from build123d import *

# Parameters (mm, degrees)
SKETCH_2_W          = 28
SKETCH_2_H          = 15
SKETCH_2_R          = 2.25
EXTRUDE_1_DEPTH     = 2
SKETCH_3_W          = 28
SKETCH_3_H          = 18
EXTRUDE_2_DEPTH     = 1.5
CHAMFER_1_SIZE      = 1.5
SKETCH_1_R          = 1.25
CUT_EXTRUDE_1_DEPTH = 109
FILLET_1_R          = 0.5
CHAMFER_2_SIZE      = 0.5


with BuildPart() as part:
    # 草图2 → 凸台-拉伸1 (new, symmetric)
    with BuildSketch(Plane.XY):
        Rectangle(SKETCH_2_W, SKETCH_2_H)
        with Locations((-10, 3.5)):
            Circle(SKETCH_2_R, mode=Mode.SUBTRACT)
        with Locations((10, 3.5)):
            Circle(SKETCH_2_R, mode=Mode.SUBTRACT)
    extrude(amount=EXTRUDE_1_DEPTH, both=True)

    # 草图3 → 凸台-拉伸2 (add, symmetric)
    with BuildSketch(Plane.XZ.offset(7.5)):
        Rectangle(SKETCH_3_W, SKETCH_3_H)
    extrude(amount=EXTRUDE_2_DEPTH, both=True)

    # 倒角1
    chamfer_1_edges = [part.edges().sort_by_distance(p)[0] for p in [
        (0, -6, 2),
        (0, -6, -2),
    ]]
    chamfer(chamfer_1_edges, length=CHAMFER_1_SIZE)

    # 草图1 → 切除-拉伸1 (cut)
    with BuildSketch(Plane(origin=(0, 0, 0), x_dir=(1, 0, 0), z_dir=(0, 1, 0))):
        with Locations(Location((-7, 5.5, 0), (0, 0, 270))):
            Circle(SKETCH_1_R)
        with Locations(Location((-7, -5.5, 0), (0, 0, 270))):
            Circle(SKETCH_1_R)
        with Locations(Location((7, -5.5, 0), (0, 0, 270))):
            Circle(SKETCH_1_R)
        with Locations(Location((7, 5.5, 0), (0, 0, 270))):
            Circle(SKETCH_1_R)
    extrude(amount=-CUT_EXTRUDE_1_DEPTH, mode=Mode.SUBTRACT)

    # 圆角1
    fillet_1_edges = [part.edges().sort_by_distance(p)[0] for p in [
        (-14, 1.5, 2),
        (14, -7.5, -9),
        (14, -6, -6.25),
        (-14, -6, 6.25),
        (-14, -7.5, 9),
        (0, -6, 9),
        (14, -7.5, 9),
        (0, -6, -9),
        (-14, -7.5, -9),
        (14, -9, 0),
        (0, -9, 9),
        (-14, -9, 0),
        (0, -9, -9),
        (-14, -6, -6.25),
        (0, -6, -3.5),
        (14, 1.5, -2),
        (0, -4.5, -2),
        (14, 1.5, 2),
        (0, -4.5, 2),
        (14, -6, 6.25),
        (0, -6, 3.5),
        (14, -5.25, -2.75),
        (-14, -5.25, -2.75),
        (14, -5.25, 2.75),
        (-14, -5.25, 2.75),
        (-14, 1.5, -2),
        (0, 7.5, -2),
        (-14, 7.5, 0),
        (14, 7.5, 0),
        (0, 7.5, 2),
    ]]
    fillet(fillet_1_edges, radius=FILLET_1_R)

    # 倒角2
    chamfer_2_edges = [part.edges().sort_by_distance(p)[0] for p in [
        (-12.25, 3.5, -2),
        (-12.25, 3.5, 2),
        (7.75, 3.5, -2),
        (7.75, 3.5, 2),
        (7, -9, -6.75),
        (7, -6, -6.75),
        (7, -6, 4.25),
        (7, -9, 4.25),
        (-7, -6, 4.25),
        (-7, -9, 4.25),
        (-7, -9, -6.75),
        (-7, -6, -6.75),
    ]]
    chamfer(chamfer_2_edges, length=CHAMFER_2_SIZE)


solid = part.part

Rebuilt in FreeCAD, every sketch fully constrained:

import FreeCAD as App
import Part
import Sketcher
from FreeCAD import Vector


def edges_at(feature, points):
    """Names of the edges that pass closest to the given points."""
    edges = feature.Shape.Edges
    near = lambda p: min(range(len(edges)), key=lambda i: edges[i].distToShape(Part.Vertex(*p))[0])
    return sorted({f"Edge{near(p) + 1}" for p in points})


def add_polygon(sketch, points):
    """Adds a closed chain of lines whose ends are joined by coincident constraints."""
    first, n = sketch.GeometryCount, len(points)
    for a, b in zip(points, points[1:] + points[:1]):
        sketch.addGeometry(Part.LineSegment(App.Vector(*a, 0), App.Vector(*b, 0)), False)
    for i in range(n):
        sketch.addConstraint(Sketcher.Constraint("Coincident", first + i, 2, first + (i + 1) % n, 1))

doc = App.newDocument("Part")
body = doc.addObject("PartDesign::Body", "Body")

sketch1 = doc.addObject("Sketcher::SketchObject", "Sketch")
body.addObject(sketch1)
sketch1.AttachmentSupport = (doc.XY_Plane, [""])
sketch1.MapMode = "FlatFace"
add_polygon(sketch1, [(-14, 7.5), (-14, -7.5), (14, -7.5), (14, 7.5)])
sketch1.addGeometry(Part.Circle(Vector(-10, 3.5, 0), Vector(0, 0, 1), 2.2), False)
sketch1.addGeometry(Part.Circle(Vector(10, 3.5, 0), Vector(0, 0, 1), 2.2), False)
sketch1.addConstraint([
    Sketcher.Constraint("Vertical", 0),
    Sketcher.Constraint("Horizontal", 1),
    Sketcher.Constraint("Vertical", 2),
    Sketcher.Constraint("Horizontal", 3),
    Sketcher.Constraint("Equal", 4, 5),
    Sketcher.Constraint("Symmetric", 0, 2, 2, 2, -1, 1),
    Sketcher.Constraint("Symmetric", 4, 3, 5, 3, -2),
    Sketcher.Constraint("Diameter", 4, 4.5),
    Sketcher.Constraint("DistanceX", 1, 1, 1, 2, 28.0),
    Sketcher.Constraint("DistanceY", 0, 2, 0, 1, 15.0),
    Sketcher.Constraint("DistanceX", 4, 3, -1, 1, 10.0),
    Sketcher.Constraint("DistanceY", 0, 2, 4, 3, 11.0),
])
pad1 = doc.addObject("PartDesign::Pad", "Pad")
body.addObject(pad1)
pad1.Profile = sketch1
pad1.Length = 4
pad1.Midplane = True

sketch2 = doc.addObject("Sketcher::SketchObject", "Sketch001")
body.addObject(sketch2)
sketch2.AttachmentSupport = (doc.XZ_Plane, [""])
sketch2.MapMode = "FlatFace"
sketch2.AttachmentOffset = App.Placement(Vector(0, 0, 7.5), App.Rotation())
add_polygon(sketch2, [(-14, 9), (-14, -9), (14, -9), (14, 9)])
sketch2.addConstraint([
    Sketcher.Constraint("Vertical", 0),
    Sketcher.Constraint("Horizontal", 1),
    Sketcher.Constraint("Vertical", 2),
    Sketcher.Constraint("Horizontal", 3),
    Sketcher.Constraint("Symmetric", 0, 2, 2, 2, -1, 1),
    Sketcher.Constraint("DistanceX", 1, 1, 1, 2, 28.0),
    Sketcher.Constraint("DistanceY", 0, 2, 0, 1, 18.0),
])
pad2 = doc.addObject("PartDesign::Pad", "Pad001")
body.addObject(pad2)
pad2.Profile = sketch2
pad2.Length = 3
pad2.Midplane = True
doc.recompute()

chamfer = doc.addObject("PartDesign::Chamfer", "Chamfer")
body.addObject(chamfer)
chamfer.Base = (pad2, edges_at(pad2, [(0, -6, 2), (0, -6, -2)]))
chamfer.Size = 1.5

sketch3 = doc.addObject("Sketcher::SketchObject", "Sketch002")
body.addObject(sketch3)
sketch3.AttachmentSupport = (doc.XZ_Plane, [""])
sketch3.MapMode = "FlatFace"
sketch3.addGeometry([
    Part.Circle(Vector(-7, -5.5, 0), Vector(0, 0, 1), 1.2),
    Part.Circle(Vector(-7, 5.5, 0), Vector(0, 0, 1), 1.2),
    Part.Circle(Vector(7, 5.5, 0), Vector(0, 0, 1), 1.2),
    Part.Circle(Vector(7, -5.5, 0), Vector(0, 0, 1), 1.2),
], False)
sketch3.addConstraint([
    Sketcher.Constraint("Equal", 0, 1),
    Sketcher.Constraint("Equal", 1, 2),
    Sketcher.Constraint("Equal", 2, 3),
    Sketcher.Constraint("Symmetric", 0, 3, 2, 3, -1, 1),
    Sketcher.Constraint("Symmetric", 1, 3, 3, 3, -1, 1),
    Sketcher.Constraint("Symmetric", 1, 3, 2, 3, -2),
    Sketcher.Constraint("Diameter", 0, 2.5),
    Sketcher.Constraint("DistanceX", 0, 3, -1, 1, 7.0),
    Sketcher.Constraint("DistanceY", 0, 3, 1, 3, 11.0),
])
pocket1 = doc.addObject("PartDesign::Pocket", "Pocket")
body.addObject(pocket1)
pocket1.Profile = sketch3
pocket1.Length = 109
pocket1.Reversed = True
doc.recompute()

fillet = doc.addObject("PartDesign::Fillet", "Fillet")
body.addObject(fillet)
fillet.Base = (pocket1, edges_at(pocket1, [
    (-14, 1.5, 2),
    (14, -7.5, -9),
    (14, -6, -6.25),
    (-14, -6, 6.25),
    (-14, -7.5, 9),
    (0, -6, 9),
    (14, -7.5, 9),
    (0, -6, -9),
    (-14, -7.5, -9),
    (14, -9, 0),
    (0, -9, 9),
    (-14, -9, 0),
    (0, -9, -9),
    (-14, -6, -6.25),
    (0, -6, -3.5),
    (14, 1.5, -2),
    (0, -4.5, -2),
    (14, 1.5, 2),
    (0, -4.5, 2),
    (14, -6, 6.25),
    (0, -6, 3.5),
    (14, -5.25, -2.75),
    (-14, -5.25, -2.75),
    (14, -5.25, 2.75),
    (-14, -5.25, 2.75),
    (-14, 1.5, -2),
    (0, 7.5, -2),
    (-14, 7.5, 0),
    (14, 7.5, 0),
    (0, 7.5, 2),
]))
fillet.Radius = 0.5
doc.recompute()

chamfer2 = doc.addObject("PartDesign::Chamfer", "Chamfer001")
body.addObject(chamfer2)
chamfer2.Base = (fillet, edges_at(fillet, [
    (-12.25, 3.5, -2),
    (-12.25, 3.5, 2),
    (7.75, 3.5, -2),
    (7.75, 3.5, 2),
    (7, -9, -6.75),
    (7, -6, -6.75),
    (7, -6, 4.25),
    (7, -9, 4.25),
    (-7, -6, 4.25),
    (-7, -9, 4.25),
    (-7, -9, -6.75),
    (-7, -6, -6.75),
]))
chamfer2.Size = 0.5

doc.recompute()
